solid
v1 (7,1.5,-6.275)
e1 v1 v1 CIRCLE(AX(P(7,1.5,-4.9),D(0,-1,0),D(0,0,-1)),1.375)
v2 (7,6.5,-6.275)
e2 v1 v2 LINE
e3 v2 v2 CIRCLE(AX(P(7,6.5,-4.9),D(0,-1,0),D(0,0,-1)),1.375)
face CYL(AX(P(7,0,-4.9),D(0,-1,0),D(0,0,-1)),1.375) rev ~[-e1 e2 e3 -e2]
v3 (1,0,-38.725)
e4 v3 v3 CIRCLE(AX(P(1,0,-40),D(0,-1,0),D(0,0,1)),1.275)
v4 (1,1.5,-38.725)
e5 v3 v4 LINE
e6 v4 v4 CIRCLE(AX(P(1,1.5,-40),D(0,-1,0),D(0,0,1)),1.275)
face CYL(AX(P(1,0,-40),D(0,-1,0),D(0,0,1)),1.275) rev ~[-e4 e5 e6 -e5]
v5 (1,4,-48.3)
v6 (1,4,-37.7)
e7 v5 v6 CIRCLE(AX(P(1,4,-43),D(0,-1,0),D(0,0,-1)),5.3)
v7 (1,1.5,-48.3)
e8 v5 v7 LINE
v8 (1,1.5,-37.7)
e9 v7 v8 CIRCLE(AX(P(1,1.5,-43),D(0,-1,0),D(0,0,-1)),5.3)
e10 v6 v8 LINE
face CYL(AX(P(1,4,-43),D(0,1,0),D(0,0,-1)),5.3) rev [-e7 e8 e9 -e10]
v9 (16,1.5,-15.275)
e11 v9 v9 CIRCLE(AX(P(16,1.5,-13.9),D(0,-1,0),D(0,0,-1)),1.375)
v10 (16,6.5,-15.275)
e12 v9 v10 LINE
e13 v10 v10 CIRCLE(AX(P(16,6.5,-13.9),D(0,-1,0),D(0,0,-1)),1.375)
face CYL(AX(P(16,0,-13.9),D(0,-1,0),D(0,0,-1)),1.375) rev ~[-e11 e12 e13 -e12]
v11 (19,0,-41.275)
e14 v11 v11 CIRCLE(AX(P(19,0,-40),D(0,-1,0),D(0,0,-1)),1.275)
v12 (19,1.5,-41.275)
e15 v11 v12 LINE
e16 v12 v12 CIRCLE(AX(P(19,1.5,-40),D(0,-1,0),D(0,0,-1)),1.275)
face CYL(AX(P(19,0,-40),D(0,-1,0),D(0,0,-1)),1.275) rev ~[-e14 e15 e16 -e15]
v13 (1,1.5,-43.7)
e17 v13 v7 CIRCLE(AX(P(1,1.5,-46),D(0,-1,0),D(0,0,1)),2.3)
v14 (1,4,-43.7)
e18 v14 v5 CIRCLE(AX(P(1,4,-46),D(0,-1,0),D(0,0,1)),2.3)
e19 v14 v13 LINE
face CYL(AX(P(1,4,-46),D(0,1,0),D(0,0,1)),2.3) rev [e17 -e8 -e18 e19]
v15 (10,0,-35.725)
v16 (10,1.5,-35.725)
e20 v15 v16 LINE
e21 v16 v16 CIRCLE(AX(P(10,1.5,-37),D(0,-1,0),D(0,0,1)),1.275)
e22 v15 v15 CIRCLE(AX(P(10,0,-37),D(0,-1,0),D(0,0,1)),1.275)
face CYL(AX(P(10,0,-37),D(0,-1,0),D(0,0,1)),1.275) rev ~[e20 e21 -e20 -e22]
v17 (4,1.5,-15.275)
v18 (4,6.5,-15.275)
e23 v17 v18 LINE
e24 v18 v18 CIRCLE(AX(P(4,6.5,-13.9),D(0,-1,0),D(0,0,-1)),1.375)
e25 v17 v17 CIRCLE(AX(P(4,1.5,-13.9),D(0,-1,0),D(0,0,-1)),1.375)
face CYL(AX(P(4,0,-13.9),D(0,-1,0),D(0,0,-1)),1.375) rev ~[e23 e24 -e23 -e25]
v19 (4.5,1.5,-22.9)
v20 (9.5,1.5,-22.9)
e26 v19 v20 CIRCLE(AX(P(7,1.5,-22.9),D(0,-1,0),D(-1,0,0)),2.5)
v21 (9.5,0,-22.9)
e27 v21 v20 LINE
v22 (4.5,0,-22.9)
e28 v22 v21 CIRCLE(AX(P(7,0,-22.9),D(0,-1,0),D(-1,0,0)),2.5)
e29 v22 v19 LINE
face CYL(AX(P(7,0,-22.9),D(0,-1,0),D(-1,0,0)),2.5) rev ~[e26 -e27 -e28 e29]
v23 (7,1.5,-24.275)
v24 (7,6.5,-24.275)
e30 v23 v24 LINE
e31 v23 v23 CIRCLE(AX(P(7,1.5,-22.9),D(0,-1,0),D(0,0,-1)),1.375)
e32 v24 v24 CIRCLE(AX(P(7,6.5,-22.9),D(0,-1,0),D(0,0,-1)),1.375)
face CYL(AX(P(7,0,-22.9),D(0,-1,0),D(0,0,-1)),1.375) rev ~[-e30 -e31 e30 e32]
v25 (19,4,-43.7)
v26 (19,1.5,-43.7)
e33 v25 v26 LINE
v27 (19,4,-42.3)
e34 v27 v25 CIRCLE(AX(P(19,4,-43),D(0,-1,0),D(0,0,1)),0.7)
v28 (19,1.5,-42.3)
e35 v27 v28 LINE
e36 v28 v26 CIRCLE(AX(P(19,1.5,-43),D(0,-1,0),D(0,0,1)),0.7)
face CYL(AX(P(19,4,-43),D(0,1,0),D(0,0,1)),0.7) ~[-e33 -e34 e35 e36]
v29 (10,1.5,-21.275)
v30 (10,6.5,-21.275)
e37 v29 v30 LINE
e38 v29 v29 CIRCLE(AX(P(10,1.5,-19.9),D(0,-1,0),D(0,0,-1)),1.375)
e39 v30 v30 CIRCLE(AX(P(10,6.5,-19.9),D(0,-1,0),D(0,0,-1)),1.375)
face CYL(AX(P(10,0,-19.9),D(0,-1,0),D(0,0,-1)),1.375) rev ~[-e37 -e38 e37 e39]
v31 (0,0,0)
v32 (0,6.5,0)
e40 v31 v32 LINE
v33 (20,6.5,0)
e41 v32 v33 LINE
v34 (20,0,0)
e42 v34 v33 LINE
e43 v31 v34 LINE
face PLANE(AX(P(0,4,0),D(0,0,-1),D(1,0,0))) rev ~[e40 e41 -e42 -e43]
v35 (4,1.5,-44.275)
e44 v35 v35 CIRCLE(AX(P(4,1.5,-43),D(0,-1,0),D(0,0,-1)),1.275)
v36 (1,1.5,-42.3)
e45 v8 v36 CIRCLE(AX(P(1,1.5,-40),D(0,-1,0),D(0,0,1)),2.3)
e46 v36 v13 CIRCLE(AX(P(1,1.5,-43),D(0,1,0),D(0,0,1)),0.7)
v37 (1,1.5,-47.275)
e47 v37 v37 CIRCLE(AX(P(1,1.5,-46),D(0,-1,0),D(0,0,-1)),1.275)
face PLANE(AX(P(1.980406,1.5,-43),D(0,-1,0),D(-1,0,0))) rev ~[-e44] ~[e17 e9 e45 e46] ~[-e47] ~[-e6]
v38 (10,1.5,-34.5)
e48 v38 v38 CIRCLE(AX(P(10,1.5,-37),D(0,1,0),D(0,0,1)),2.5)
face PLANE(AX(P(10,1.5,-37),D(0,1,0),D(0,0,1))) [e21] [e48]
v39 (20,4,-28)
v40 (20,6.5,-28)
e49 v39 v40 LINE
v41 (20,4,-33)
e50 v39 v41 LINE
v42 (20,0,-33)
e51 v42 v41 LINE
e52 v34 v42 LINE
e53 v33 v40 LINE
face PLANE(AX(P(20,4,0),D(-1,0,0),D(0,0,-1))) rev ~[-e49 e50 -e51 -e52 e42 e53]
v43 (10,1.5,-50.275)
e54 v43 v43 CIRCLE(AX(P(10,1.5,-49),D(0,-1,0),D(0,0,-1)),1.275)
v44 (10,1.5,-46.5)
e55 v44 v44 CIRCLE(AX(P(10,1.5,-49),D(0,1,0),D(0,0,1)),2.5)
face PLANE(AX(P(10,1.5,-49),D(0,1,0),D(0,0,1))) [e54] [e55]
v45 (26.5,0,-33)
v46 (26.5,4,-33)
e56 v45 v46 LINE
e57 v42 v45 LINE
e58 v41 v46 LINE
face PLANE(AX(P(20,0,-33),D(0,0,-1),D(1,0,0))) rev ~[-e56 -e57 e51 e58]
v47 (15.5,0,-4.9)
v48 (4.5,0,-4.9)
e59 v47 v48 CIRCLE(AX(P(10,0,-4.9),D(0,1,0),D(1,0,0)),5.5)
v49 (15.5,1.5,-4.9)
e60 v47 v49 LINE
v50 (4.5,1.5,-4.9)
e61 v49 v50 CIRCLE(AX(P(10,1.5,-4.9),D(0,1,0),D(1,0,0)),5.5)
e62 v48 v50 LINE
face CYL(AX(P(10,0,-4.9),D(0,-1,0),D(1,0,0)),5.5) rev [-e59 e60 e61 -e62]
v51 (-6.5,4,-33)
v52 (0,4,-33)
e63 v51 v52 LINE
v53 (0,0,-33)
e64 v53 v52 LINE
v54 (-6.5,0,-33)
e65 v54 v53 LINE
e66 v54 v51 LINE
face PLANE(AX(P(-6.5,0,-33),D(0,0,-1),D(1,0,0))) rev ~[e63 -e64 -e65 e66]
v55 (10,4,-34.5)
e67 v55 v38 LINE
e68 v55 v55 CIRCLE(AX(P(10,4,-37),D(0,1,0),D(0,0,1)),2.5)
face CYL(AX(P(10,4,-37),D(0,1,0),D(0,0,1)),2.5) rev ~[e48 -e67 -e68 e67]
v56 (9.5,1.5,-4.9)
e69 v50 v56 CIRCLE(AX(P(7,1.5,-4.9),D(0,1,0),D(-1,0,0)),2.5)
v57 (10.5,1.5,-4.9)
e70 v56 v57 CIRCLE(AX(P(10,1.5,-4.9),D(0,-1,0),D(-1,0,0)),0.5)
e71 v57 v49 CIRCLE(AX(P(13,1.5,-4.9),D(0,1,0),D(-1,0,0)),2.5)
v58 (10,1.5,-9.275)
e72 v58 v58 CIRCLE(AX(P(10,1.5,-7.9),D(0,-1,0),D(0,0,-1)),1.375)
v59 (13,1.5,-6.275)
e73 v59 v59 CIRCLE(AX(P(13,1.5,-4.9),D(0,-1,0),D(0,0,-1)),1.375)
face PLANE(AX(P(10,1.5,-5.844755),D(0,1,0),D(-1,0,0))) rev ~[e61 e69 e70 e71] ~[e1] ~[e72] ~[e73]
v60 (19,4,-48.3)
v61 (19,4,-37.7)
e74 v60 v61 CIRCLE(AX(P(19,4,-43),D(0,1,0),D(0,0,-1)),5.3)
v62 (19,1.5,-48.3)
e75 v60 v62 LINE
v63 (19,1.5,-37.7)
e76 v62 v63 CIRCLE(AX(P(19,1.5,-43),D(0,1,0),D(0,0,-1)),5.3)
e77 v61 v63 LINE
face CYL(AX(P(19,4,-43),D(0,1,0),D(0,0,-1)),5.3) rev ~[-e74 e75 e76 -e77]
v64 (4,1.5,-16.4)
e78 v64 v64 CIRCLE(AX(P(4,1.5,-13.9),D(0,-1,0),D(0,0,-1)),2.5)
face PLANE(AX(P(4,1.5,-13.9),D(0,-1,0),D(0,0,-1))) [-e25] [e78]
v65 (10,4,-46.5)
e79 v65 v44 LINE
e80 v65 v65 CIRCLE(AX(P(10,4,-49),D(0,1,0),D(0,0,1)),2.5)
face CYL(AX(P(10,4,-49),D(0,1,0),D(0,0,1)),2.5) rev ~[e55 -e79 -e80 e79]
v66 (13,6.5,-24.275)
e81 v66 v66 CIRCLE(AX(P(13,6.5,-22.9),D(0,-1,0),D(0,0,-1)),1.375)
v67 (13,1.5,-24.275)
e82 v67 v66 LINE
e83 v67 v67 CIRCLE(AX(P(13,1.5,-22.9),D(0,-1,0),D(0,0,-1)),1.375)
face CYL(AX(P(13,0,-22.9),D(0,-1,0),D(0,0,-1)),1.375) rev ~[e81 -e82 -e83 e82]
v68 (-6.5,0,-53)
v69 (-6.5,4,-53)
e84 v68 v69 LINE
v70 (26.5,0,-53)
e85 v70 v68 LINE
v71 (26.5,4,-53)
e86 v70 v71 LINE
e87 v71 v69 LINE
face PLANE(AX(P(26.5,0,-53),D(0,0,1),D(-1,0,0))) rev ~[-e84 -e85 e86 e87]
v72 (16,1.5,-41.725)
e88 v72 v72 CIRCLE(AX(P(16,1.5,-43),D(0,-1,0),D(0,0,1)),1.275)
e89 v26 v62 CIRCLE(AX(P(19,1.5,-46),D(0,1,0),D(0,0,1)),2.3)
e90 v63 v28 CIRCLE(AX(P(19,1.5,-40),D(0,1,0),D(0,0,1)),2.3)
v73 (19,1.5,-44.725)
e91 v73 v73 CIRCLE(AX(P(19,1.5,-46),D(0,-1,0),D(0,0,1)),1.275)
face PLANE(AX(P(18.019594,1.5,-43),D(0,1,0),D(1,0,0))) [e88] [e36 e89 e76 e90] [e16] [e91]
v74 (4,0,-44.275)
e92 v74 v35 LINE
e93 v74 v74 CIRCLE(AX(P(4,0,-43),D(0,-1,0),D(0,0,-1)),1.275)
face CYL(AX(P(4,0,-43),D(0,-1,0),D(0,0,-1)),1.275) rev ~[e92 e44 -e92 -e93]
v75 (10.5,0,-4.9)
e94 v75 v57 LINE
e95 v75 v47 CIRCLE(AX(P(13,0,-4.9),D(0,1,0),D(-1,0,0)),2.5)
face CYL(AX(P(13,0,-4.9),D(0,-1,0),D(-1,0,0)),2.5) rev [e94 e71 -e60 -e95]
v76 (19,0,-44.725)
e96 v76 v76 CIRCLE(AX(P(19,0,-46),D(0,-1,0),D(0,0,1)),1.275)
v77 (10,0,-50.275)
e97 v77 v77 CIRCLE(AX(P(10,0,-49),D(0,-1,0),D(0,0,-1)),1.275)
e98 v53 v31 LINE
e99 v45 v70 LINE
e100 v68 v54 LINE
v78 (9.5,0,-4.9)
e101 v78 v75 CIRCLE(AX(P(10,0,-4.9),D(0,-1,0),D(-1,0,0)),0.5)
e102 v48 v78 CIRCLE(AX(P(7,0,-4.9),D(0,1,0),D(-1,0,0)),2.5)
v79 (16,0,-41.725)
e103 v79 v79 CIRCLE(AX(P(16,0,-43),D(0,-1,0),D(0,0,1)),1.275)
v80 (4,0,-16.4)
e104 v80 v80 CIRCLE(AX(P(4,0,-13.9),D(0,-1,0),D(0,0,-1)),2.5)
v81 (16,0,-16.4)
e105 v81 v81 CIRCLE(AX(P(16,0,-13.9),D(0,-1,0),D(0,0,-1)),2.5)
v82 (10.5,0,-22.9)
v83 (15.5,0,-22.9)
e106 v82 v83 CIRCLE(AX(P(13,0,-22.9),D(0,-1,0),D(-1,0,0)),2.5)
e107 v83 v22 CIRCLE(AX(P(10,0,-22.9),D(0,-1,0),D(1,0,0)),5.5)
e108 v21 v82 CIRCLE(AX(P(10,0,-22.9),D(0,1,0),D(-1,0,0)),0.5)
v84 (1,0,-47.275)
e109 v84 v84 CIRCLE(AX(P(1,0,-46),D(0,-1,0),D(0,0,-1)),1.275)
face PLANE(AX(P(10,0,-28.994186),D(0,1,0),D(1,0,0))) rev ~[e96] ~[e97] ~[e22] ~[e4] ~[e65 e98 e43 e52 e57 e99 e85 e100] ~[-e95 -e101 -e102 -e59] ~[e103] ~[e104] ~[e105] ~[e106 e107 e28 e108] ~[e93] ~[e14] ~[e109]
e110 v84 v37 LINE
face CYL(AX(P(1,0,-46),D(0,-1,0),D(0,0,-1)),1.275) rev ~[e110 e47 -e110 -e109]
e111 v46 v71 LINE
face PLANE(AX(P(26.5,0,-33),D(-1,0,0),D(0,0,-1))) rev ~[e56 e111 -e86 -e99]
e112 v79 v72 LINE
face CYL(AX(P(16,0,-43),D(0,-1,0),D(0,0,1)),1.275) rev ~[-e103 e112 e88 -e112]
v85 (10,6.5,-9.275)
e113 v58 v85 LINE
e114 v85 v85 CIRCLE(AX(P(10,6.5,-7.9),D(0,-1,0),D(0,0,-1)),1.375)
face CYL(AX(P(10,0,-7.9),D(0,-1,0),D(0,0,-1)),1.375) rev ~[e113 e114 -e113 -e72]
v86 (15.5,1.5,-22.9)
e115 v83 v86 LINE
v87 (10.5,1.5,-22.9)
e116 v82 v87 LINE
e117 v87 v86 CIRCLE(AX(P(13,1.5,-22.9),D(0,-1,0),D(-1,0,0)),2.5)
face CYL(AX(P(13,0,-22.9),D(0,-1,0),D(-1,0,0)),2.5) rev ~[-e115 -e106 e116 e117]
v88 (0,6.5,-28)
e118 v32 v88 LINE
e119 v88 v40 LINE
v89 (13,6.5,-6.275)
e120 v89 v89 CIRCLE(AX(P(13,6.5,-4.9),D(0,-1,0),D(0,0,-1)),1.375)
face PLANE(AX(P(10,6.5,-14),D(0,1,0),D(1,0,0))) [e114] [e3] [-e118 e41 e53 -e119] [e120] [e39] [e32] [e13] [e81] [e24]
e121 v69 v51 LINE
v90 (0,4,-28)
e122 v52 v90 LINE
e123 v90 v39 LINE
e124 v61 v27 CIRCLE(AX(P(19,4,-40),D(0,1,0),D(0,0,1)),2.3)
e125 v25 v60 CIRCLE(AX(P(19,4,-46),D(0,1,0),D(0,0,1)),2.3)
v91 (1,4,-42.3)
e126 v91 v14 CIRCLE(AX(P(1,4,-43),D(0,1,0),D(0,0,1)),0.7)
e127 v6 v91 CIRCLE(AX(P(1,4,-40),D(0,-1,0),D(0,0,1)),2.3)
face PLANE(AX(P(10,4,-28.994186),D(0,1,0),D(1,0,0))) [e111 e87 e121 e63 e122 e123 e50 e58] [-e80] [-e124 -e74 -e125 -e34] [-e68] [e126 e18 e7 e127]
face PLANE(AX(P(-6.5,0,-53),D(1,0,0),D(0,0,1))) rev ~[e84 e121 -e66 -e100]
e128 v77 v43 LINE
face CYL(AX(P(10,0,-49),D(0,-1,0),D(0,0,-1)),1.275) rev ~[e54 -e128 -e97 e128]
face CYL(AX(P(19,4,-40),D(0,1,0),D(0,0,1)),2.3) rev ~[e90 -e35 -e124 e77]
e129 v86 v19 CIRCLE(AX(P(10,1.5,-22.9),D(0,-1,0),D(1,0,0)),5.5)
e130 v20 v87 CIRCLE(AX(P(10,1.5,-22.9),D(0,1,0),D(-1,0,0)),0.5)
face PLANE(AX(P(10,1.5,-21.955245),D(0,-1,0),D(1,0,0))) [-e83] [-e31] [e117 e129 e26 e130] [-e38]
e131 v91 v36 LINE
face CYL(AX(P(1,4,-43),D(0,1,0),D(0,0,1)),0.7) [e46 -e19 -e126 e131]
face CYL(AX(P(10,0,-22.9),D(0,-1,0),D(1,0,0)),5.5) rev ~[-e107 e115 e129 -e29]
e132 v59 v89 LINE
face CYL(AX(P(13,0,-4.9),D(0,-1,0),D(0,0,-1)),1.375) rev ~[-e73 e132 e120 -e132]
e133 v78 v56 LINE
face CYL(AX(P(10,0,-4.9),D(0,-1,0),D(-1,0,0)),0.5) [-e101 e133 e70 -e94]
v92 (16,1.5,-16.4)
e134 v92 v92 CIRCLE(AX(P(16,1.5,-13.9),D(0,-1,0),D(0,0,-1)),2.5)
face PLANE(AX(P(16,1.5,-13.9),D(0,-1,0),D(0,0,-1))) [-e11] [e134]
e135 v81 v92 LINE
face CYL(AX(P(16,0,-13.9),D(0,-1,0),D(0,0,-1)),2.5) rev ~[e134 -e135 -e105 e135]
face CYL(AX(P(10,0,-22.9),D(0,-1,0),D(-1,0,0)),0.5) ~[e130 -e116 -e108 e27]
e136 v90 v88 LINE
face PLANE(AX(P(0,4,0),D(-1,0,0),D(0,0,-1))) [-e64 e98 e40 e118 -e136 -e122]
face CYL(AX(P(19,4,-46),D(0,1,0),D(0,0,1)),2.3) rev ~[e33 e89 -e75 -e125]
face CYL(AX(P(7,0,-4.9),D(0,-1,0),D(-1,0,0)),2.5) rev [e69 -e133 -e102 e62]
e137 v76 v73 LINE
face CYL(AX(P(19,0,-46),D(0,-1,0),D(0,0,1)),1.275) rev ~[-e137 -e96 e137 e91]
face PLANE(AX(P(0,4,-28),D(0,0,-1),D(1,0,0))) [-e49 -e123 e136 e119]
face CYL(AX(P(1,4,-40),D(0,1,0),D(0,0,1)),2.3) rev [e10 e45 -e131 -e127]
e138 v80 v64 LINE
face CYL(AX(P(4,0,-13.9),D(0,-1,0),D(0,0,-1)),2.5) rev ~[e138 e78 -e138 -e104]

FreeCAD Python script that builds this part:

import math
import FreeCAD as App
import Part
import Sketcher


def add_polygon(sketch, points):
    """Adds a closed chain of lines whose ends are joined by coincident constraints."""
    first, n = sketch.GeometryCount, len(points)
    for a, b in zip(points, points[1:] + points[:1]):
        sketch.addGeometry(Part.LineSegment(App.Vector(*a, 0), App.Vector(*b, 0)), False)
    for i in range(n):
        sketch.addConstraint(Sketcher.Constraint("Coincident", first + i, 2, first + (i + 1) % n, 1))

doc = App.newDocument("Part")
params = doc.addObject("Spreadsheet::Sheet", "Params")
for row, (alias, value) in enumerate([
    ("sketch1_width", "20 mm"),
    ("sketch1_width2", "33 mm"),
    ("pad1_length", "4 mm"),
    ("sketch2_width", "20 mm"),
    ("sketch2_height", "28 mm"),
    ("pad2_length", "2.5 mm"),
    ("sketch3_diameter", "2.75 mm"),
    ("sketch4_diameter", "2.75 mm"),
    ("sketch5_diameter", "2.75 mm"),
    ("sketch6_diameter", "2.75 mm"),
    ("sketch7_diameter", "2.75 mm"),
    ("sketch8_diameter", "2.75 mm"),
    ("sketch9_diameter", "2.75 mm"),
    ("sketch10_diameter", "2.75 mm"),
    ("sketch11_diameter", "2.55 mm"),
    ("sketch12_diameter", "2.55 mm"),
    ("sketch13_diameter", "2.55 mm"),
    ("sketch14_diameter", "2.55 mm"),
    ("sketch15_diameter", "2.55 mm"),
    ("sketch16_diameter", "2.55 mm"),
    ("sketch17_diameter", "2.55 mm"),
    ("sketch18_diameter", "2.55 mm"),
    ("sketch19_diameter", "5 mm"),
    ("sketch19_radius", "5.5 mm"),
    ("pocket17_length", "1.5 mm"),
    ("sketch20_diameter", "5 mm"),
    ("sketch20_radius", "5.3 mm"),
    ("sketch20_radius2", "2.3 mm"),
    ("pocket18_length", "2.5 mm"),
], start=1):
    params.set(f"A{row}", alias)
    params.set(f"B{row}", "=" + value)
    params.setAlias(f"B{row}", alias)

body = doc.addObject("PartDesign::Body", "Body")

# Sketch on XZ plane
sketch1 = doc.addObject("Sketcher::SketchObject", "Sketch")
body.addObject(sketch1)
sketch1.AttachmentSupport = (doc.XZ_Plane, [""])
sketch1.MapMode = "FlatFace"
add_polygon(sketch1, [(0, 0), (20, 0), (20, -33), (26, -33), (26, -53), (-6, -53), (-6, -33), (0, -33)])  # lines 0-7
sketch1.addConstraint([
    Sketcher.Constraint("Horizontal", 0),
    Sketcher.Constraint("Vertical", 1),
    Sketcher.Constraint("Horizontal", 2),
    Sketcher.Constraint("Vertical", 3),
    Sketcher.Constraint("Horizontal", 4),
    Sketcher.Constraint("Vertical", 5),
    Sketcher.Constraint("Horizontal", 6),
    Sketcher.Constraint("Vertical", 7),
    Sketcher.Constraint("Coincident", 7, 2, -1, 1),
    Sketcher.Constraint("Horizontal", 2, 2, 5, 2),
    Sketcher.Constraint("Equal", 2, 6),
    Sketcher.Constraint("Equal", 4, 1),
    Sketcher.Constraint("Equal", 0, 3),
    Sketcher.Constraint("DistanceX", 0, 1, 0, 2, 20.0),
    Sketcher.Constraint("DistanceX", 4, 2, 4, 1, 33.0),
])
sketch1.setExpression("Constraints[21]", "Params.sketch1_width")
sketch1.setExpression("Constraints[22]", "Params.sketch1_width2")
pad1 = doc.addObject("PartDesign::Pad", "Pad")
body.addObject(pad1)
pad1.Profile = sketch1
pad1.setExpression("Length", "Params.pad1_length")
pad1.Reversed = True

# Sketch on XZ plane
sketch2 = doc.addObject("Sketcher::SketchObject", "Sketch001")
body.addObject(sketch2)
sketch2.AttachmentSupport = (doc.XZ_Plane, [""])
sketch2.MapMode = "FlatFace"
sketch2.AttachmentOffset = App.Placement(App.Vector(0, 0, -4), App.Rotation())
add_polygon(sketch2, [(0, -28), (0, 0), (20, 0), (20, -28)])  # lines 0-3
sketch2.addConstraint([
    Sketcher.Constraint("Vertical", 0),
    Sketcher.Constraint("Horizontal", 1),
    Sketcher.Constraint("Vertical", 2),
    Sketcher.Constraint("Horizontal", 3),
    Sketcher.Constraint("Coincident", 0, 2, -1, 1),
    Sketcher.Constraint("DistanceX", 1, 1, 1, 2, 20.0),
    Sketcher.Constraint("DistanceY", 0, 1, 0, 2, 28.0),
])
sketch2.setExpression("Constraints[9]", "Params.sketch2_width")
sketch2.setExpression("Constraints[10]", "Params.sketch2_height")
pad2 = doc.addObject("PartDesign::Pad", "Pad001")
body.addObject(pad2)
pad2.Profile = sketch2
pad2.setExpression("Length", "Params.pad2_length")
pad2.Reversed = True

# Sketch on XZ plane
sketch3 = doc.addObject("Sketcher::SketchObject", "Sketch002")
body.addObject(sketch3)
sketch3.AttachmentSupport = (doc.XZ_Plane, [""])
sketch3.MapMode = "FlatFace"
sketch3.addGeometry(Part.Circle(App.Vector(10, -7.9, 0), App.Vector(0, 0, 1), 1.4), False)
sketch3.addConstraint([
    Sketcher.Constraint("Diameter", 0, 2.75),
    Sketcher.Constraint("DistanceX", -1, 1, 0, 3, 10.0),
    Sketcher.Constraint("DistanceY", 0, 3, -1, 1, 7.9),
])
sketch3.setExpression("Constraints[0]", "Params.sketch3_diameter")
pocket1 = doc.addObject("PartDesign::Pocket", "Pocket")
body.addObject(pocket1)
pocket1.Profile = sketch3
pocket1.Type = "UpToFirst"

# Sketch on XZ plane
sketch4 = doc.addObject("Sketcher::SketchObject", "Sketch003")
body.addObject(sketch4)
sketch4.AttachmentSupport = (doc.XZ_Plane, [""])
sketch4.MapMode = "FlatFace"
sketch4.addGeometry(Part.Circle(App.Vector(7, -4.9, 0), App.Vector(0, 0, 1), 1.4), False)
sketch4.addConstraint([
    Sketcher.Constraint("Diameter", 0, 2.75),
    Sketcher.Constraint("DistanceX", -1, 1, 0, 3, 7.0),
    Sketcher.Constraint("DistanceY", 0, 3, -1, 1, 4.9),
])
sketch4.setExpression("Constraints[0]", "Params.sketch4_diameter")
pocket2 = doc.addObject("PartDesign::Pocket", "Pocket001")
body.addObject(pocket2)
pocket2.Profile = sketch4
pocket2.Type = "UpToFirst"

# Sketch on XZ plane
sketch5 = doc.addObject("Sketcher::SketchObject", "Sketch004")
body.addObject(sketch5)
sketch5.AttachmentSupport = (doc.XZ_Plane, [""])
sketch5.MapMode = "FlatFace"
sketch5.addGeometry(Part.Circle(App.Vector(4, -13.9, 0), App.Vector(0, 0, 1), 1.4), False)
sketch5.addConstraint([
    Sketcher.Constraint("Diameter", 0, 2.75),
    Sketcher.Constraint("DistanceX", -1, 1, 0, 3, 4.0),
    Sketcher.Constraint("DistanceY", 0, 3, -1, 1, 13.9),
])
sketch5.setExpression("Constraints[0]", "Params.sketch5_diameter")
pocket3 = doc.addObject("PartDesign::Pocket", "Pocket002")
body.addObject(pocket3)
pocket3.Profile = sketch5
pocket3.Type = "UpToFirst"

# Sketch on XZ plane
sketch6 = doc.addObject("Sketcher::SketchObject", "Sketch005")
body.addObject(sketch6)
sketch6.AttachmentSupport = (doc.XZ_Plane, [""])
sketch6.MapMode = "FlatFace"
sketch6.addGeometry(Part.Circle(App.Vector(10, -19.9, 0), App.Vector(0, 0, 1), 1.4), False)
sketch6.addConstraint([
    Sketcher.Constraint("Diameter", 0, 2.75),
    Sketcher.Constraint("DistanceX", -1, 1, 0, 3, 10.0),
    Sketcher.Constraint("DistanceY", 0, 3, -1, 1, 19.9),
])
sketch6.setExpression("Constraints[0]", "Params.sketch6_diameter")
pocket4 = doc.addObject("PartDesign::Pocket", "Pocket003")
body.addObject(pocket4)
pocket4.Profile = sketch6
pocket4.Type = "UpToFirst"

# Sketch on XZ plane
sketch7 = doc.addObject("Sketcher::SketchObject", "Sketch006")
body.addObject(sketch7)
sketch7.AttachmentSupport = (doc.XZ_Plane, [""])
sketch7.MapMode = "FlatFace"
sketch7.addGeometry(Part.Circle(App.Vector(7, -22.9, 0), App.Vector(0, 0, 1), 1.4), False)
sketch7.addConstraint([
    Sketcher.Constraint("Diameter", 0, 2.75),
    Sketcher.Constraint("DistanceX", -1, 1, 0, 3, 7.0),
    Sketcher.Constraint("DistanceY", 0, 3, -1, 1, 22.9),
])
sketch7.setExpression("Constraints[0]", "Params.sketch7_diameter")
pocket5 = doc.addObject("PartDesign::Pocket", "Pocket004")
body.addObject(pocket5)
pocket5.Profile = sketch7
pocket5.Type = "UpToFirst"

# Sketch on XZ plane
sketch8 = doc.addObject("Sketcher::SketchObject", "Sketch007")
body.addObject(sketch8)
sketch8.AttachmentSupport = (doc.XZ_Plane, [""])
sketch8.MapMode = "FlatFace"
sketch8.addGeometry(Part.Circle(App.Vector(13, -4.9, 0), App.Vector(0, 0, 1), 1.4), False)
sketch8.addConstraint([
    Sketcher.Constraint("Diameter", 0, 2.75),
    Sketcher.Constraint("DistanceX", -1, 1, 0, 3, 13.0),
    Sketcher.Constraint("DistanceY", 0, 3, -1, 1, 4.9),
])
sketch8.setExpression("Constraints[0]", "Params.sketch8_diameter")
pocket6 = doc.addObject("PartDesign::Pocket", "Pocket005")
body.addObject(pocket6)
pocket6.Profile = sketch8
pocket6.Type = "UpToFirst"

# Sketch on XZ plane
sketch9 = doc.addObject("Sketcher::SketchObject", "Sketch008")
body.addObject(sketch9)
sketch9.AttachmentSupport = (doc.XZ_Plane, [""])
sketch9.MapMode = "FlatFace"
sketch9.addGeometry(Part.Circle(App.Vector(13, -22.9, 0), App.Vector(0, 0, 1), 1.4), False)
sketch9.addConstraint([
    Sketcher.Constraint("Diameter", 0, 2.75),
    Sketcher.Constraint("DistanceX", -1, 1, 0, 3, 13.0),
    Sketcher.Constraint("DistanceY", 0, 3, -1, 1, 22.9),
])
sketch9.setExpression("Constraints[0]", "Params.sketch9_diameter")
pocket7 = doc.addObject("PartDesign::Pocket", "Pocket006")
body.addObject(pocket7)
pocket7.Profile = sketch9
pocket7.Type = "UpToFirst"

# Sketch on XZ plane
sketch10 = doc.addObject("Sketcher::SketchObject", "Sketch009")
body.addObject(sketch10)
sketch10.AttachmentSupport = (doc.XZ_Plane, [""])
sketch10.MapMode = "FlatFace"
sketch10.addGeometry(Part.Circle(App.Vector(16, -13.9, 0), App.Vector(0, 0, 1), 1.4), False)
sketch10.addConstraint([
    Sketcher.Constraint("Diameter", 0, 2.75),
    Sketcher.Constraint("DistanceX", -1, 1, 0, 3, 16.0),
    Sketcher.Constraint("DistanceY", 0, 3, -1, 1, 13.9),
])
sketch10.setExpression("Constraints[0]", "Params.sketch10_diameter")
pocket8 = doc.addObject("PartDesign::Pocket", "Pocket007")
body.addObject(pocket8)
pocket8.Profile = sketch10
pocket8.Type = "UpToFirst"

# Sketch on XZ plane
sketch11 = doc.addObject("Sketcher::SketchObject", "Sketch010")
body.addObject(sketch11)
sketch11.AttachmentSupport = (doc.XZ_Plane, [""])
sketch11.MapMode = "FlatFace"
sketch11.addGeometry(Part.Circle(App.Vector(10, -49, 0), App.Vector(0, 0, 1), 1.3), False)
sketch11.addConstraint([
    Sketcher.Constraint("Diameter", 0, 2.55),
    Sketcher.Constraint("DistanceX", -1, 1, 0, 3, 10.0),
    Sketcher.Constraint("DistanceY", 0, 3, -1, 1, 49.0),
])
sketch11.setExpression("Constraints[0]", "Params.sketch11_diameter")
pocket9 = doc.addObject("PartDesign::Pocket", "Pocket008")
body.addObject(pocket9)
pocket9.Profile = sketch11
pocket9.Type = "UpToFirst"

# Sketch on XZ plane
sketch12 = doc.addObject("Sketcher::SketchObject", "Sketch011")
body.addObject(sketch12)
sketch12.AttachmentSupport = (doc.XZ_Plane, [""])
sketch12.MapMode = "FlatFace"
sketch12.addGeometry(Part.Circle(App.Vector(4, -43, 0), App.Vector(0, 0, 1), 1.3), False)
sketch12.addConstraint([
    Sketcher.Constraint("Diameter", 0, 2.55),
    Sketcher.Constraint("DistanceX", -1, 1, 0, 3, 4.0),
    Sketcher.Constraint("DistanceY", 0, 3, -1, 1, 43.0),
])
sketch12.setExpression("Constraints[0]", "Params.sketch12_diameter")
pocket10 = doc.addObject("PartDesign::Pocket", "Pocket009")
body.addObject(pocket10)
pocket10.Profile = sketch12
pocket10.Type = "UpToFirst"

# Sketch on XZ plane
sketch13 = doc.addObject("Sketcher::SketchObject", "Sketch012")
body.addObject(sketch13)
sketch13.AttachmentSupport = (doc.XZ_Plane, [""])
sketch13.MapMode = "FlatFace"
sketch13.addGeometry(Part.Circle(App.Vector(1, -46, 0), App.Vector(0, 0, 1), 1.3), False)
sketch13.addConstraint([
    Sketcher.Constraint("Diameter", 0, 2.55),
    Sketcher.Constraint("DistanceX", -1, 1, 0, 3, 1.0),
    Sketcher.Constraint("DistanceY", 0, 3, -1, 1, 46.0),
])
sketch13.setExpression("Constraints[0]", "Params.sketch13_diameter")
pocket11 = doc.addObject("PartDesign::Pocket", "Pocket010")
body.addObject(pocket11)
pocket11.Profile = sketch13
pocket11.Type = "UpToFirst"

# Sketch on XZ plane
sketch14 = doc.addObject("Sketcher::SketchObject", "Sketch013")
body.addObject(sketch14)
sketch14.AttachmentSupport = (doc.XZ_Plane, [""])
sketch14.MapMode = "FlatFace"
sketch14.addGeometry(Part.Circle(App.Vector(10, -37, 0), App.Vector(0, 0, 1), 1.3), False)
sketch14.addConstraint([
    Sketcher.Constraint("Diameter", 0, 2.55),
    Sketcher.Constraint("DistanceX", -1, 1, 0, 3, 10.0),
    Sketcher.Constraint("DistanceY", 0, 3, -1, 1, 37.0),
])
sketch14.setExpression("Constraints[0]", "Params.sketch14_diameter")
pocket12 = doc.addObject("PartDesign::Pocket", "Pocket011")
body.addObject(pocket12)
pocket12.Profile = sketch14
pocket12.Type = "UpToFirst"

# Sketch on XZ plane
sketch15 = doc.addObject("Sketcher::SketchObject", "Sketch014")
body.addObject(sketch15)
sketch15.AttachmentSupport = (doc.XZ_Plane, [""])
sketch15.MapMode = "FlatFace"
sketch15.addGeometry(Part.Circle(App.Vector(1, -40, 0), App.Vector(0, 0, 1), 1.3), False)
sketch15.addConstraint([
    Sketcher.Constraint("Diameter", 0, 2.55),
    Sketcher.Constraint("DistanceX", -1, 1, 0, 3, 1.0),
    Sketcher.Constraint("DistanceY", 0, 3, -1, 1, 40.0),
])
sketch15.setExpression("Constraints[0]", "Params.sketch15_diameter")
pocket13 = doc.addObject("PartDesign::Pocket", "Pocket012")
body.addObject(pocket13)
pocket13.Profile = sketch15
pocket13.Type = "UpToFirst"

# Sketch on XZ plane
sketch16 = doc.addObject("Sketcher::SketchObject", "Sketch015")
body.addObject(sketch16)
sketch16.AttachmentSupport = (doc.XZ_Plane, [""])
sketch16.MapMode = "FlatFace"
sketch16.addGeometry(Part.Circle(App.Vector(19, -46, 0), App.Vector(0, 0, 1), 1.3), False)
sketch16.addConstraint([
    Sketcher.Constraint("Diameter", 0, 2.55),
    Sketcher.Constraint("DistanceX", -1, 1, 0, 3, 19.0),
    Sketcher.Constraint("DistanceY", 0, 3, -1, 1, 46.0),
])
sketch16.setExpression("Constraints[0]", "Params.sketch16_diameter")
pocket14 = doc.addObject("PartDesign::Pocket", "Pocket013")
body.addObject(pocket14)
pocket14.Profile = sketch16
pocket14.Type = "UpToFirst"

# Sketch on XZ plane
sketch17 = doc.addObject("Sketcher::SketchObject", "Sketch016")
body.addObject(sketch17)
sketch17.AttachmentSupport = (doc.XZ_Plane, [""])
sketch17.MapMode = "FlatFace"
sketch17.addGeometry(Part.Circle(App.Vector(16, -43, 0), App.Vector(0, 0, 1), 1.3), False)
sketch17.addConstraint([
    Sketcher.Constraint("Diameter", 0, 2.55),
    Sketcher.Constraint("DistanceX", -1, 1, 0, 3, 16.0),
    Sketcher.Constraint("DistanceY", 0, 3, -1, 1, 43.0),
])
sketch17.setExpression("Constraints[0]", "Params.sketch17_diameter")
pocket15 = doc.addObject("PartDesign::Pocket", "Pocket014")
body.addObject(pocket15)
pocket15.Profile = sketch17
pocket15.Type = "UpToFirst"

# Sketch on XZ plane
sketch18 = doc.addObject("Sketcher::SketchObject", "Sketch017")
body.addObject(sketch18)
sketch18.AttachmentSupport = (doc.XZ_Plane, [""])
sketch18.MapMode = "FlatFace"
sketch18.addGeometry(Part.Circle(App.Vector(19, -40, 0), App.Vector(0, 0, 1), 1.3), False)
sketch18.addConstraint([
    Sketcher.Constraint("Diameter", 0, 2.55),
    Sketcher.Constraint("DistanceX", -1, 1, 0, 3, 19.0),
    Sketcher.Constraint("DistanceY", 0, 3, -1, 1, 40.0),
])
sketch18.setExpression("Constraints[0]", "Params.sketch18_diameter")
pocket16 = doc.addObject("PartDesign::Pocket", "Pocket015")
body.addObject(pocket16)
pocket16.Profile = sketch18
pocket16.Type = "UpToFirst"

# Sketch on XZ plane
sketch19 = doc.addObject("Sketcher::SketchObject", "Sketch018")
body.addObject(sketch19)
sketch19.AttachmentSupport = (doc.XZ_Plane, [""])
sketch19.MapMode = "FlatFace"
sketch19.addGeometry([
    Part.Circle(App.Vector(4, -13.9, 0), App.Vector(0, 0, 1), 2.5),  # 0
    Part.Circle(App.Vector(16, -13.9, 0), App.Vector(0, 0, 1), 2.5),  # 1
    Part.ArcOfCircle(Part.Circle(App.Vector(10, -22.9, 0), App.Vector(0, 0, 1), 5.5), math.radians(0), math.radians(180)),  # 2
    Part.ArcOfCircle(Part.Circle(App.Vector(7, -22.9, 0), App.Vector(0, 0, 1), 2.5), math.radians(180), math.radians(360)),  # 3
    Part.ArcOfCircle(Part.Circle(App.Vector(10, -22.9, 0), App.Vector(0, 0, 1), 0.5), math.radians(0), math.radians(180)),  # 4
    Part.ArcOfCircle(Part.Circle(App.Vector(13, -22.9, 0), App.Vector(0, 0, 1), 2.5), math.radians(180), math.radians(360)),  # 5
    Part.ArcOfCircle(Part.Circle(App.Vector(10, -4.9, 0), App.Vector(0, 0, 1), 5.5), math.radians(180), math.radians(360)),  # 6
    Part.ArcOfCircle(Part.Circle(App.Vector(13, -4.9, 0), App.Vector(0, 0, 1), 2.5), math.radians(0), math.radians(180)),  # 7
    Part.ArcOfCircle(Part.Circle(App.Vector(10, -4.9, 0), App.Vector(0, 0, 1), 0.5), math.radians(180), math.radians(360)),  # 8
    Part.ArcOfCircle(Part.Circle(App.Vector(7, -4.9, 0), App.Vector(0, 0, 1), 2.5), math.radians(0), math.radians(180)),  # 9
], False)
sketch19.addConstraint([
    Sketcher.Constraint("Tangent", 2, 2, 3, 1),
    Sketcher.Constraint("Tangent", 3, 2, 4, 2),
    Sketcher.Constraint("Tangent", 4, 1, 5, 1),
    Sketcher.Constraint("Tangent", 5, 2, 2, 1),
    Sketcher.Constraint("Tangent", 6, 2, 7, 1),
    Sketcher.Constraint("Tangent", 7, 2, 8, 2),
    Sketcher.Constraint("Tangent", 8, 1, 9, 1),
    Sketcher.Constraint("Tangent", 9, 2, 6, 1),
    Sketcher.Constraint("Coincident", 4, 3, 2, 3),
    Sketcher.Constraint("Coincident", 8, 3, 6, 3),
    Sketcher.Constraint("Equal", 0, 1),
    Sketcher.Constraint("Equal", 1, 3),
    Sketcher.Constraint("Equal", 2, 6),
    Sketcher.Constraint("Equal", 5, 7),
    Sketcher.Constraint("Horizontal", 0, 3, 1, 3),
    Sketcher.Constraint("Horizontal", 2, 3, 3, 3),
    Sketcher.Constraint("Horizontal", 4, 3, 5, 3),
    Sketcher.Constraint("Horizontal", 6, 3, 7, 3),
    Sketcher.Constraint("Horizontal", 8, 3, 9, 3),
    Sketcher.Constraint("Vertical", 4, 3, 6, 3),
    Sketcher.Constraint("Diameter", 0, 5.0),
    Sketcher.Constraint("Radius", 2, 5.5),
    Sketcher.Constraint("DistanceX", -1, 1, 0, 3, 4.0),
    Sketcher.Constraint("DistanceX", -1, 1, 1, 3, 16.0),
    Sketcher.Constraint("DistanceX", -1, 1, 2, 3, 10.0),
    Sketcher.Constraint("DistanceY", 2, 3, 0, 3, 9.0),
    Sketcher.Constraint("DistanceY", 0, 3, 6, 3, 9.0),
    Sketcher.Constraint("DistanceY", 0, 3, -1, 1, 13.9),
])
sketch19.setExpression("Constraints[20]", "Params.sketch19_diameter")
sketch19.setExpression("Constraints[21]", "Params.sketch19_radius")
pocket17 = doc.addObject("PartDesign::Pocket", "Pocket016")
body.addObject(pocket17)
pocket17.Profile = sketch19
pocket17.setExpression("Length", "Params.pocket17_length")

# Sketch on XZ plane
sketch20 = doc.addObject("Sketcher::SketchObject", "Sketch019")
body.addObject(sketch20)
sketch20.AttachmentSupport = (doc.XZ_Plane, [""])
sketch20.MapMode = "FlatFace"
sketch20.AttachmentOffset = App.Placement(App.Vector(0, 0, -4), App.Rotation())
sketch20.addGeometry([
    Part.Circle(App.Vector(10, -49, 0), App.Vector(0, 0, 1), 2.5),  # 0
    Part.Circle(App.Vector(10, -37, 0), App.Vector(0, 0, 1), 2.5),  # 1
    Part.ArcOfCircle(Part.Circle(App.Vector(19, -43, 0), App.Vector(0, 0, 1), 5.3), math.radians(90), math.radians(270)),  # 2
    Part.ArcOfCircle(Part.Circle(App.Vector(19, -40, 0), App.Vector(0, 0, 1), 2.3), math.radians(-90), math.radians(90)),  # 3
    Part.ArcOfCircle(Part.Circle(App.Vector(19, -43, 0), App.Vector(0, 0, 1), 0.7), math.radians(90), math.radians(270)),  # 4
    Part.ArcOfCircle(Part.Circle(App.Vector(19, -46, 0), App.Vector(0, 0, 1), 2.3), math.radians(-90), math.radians(90)),  # 5
    Part.ArcOfCircle(Part.Circle(App.Vector(1, -43, 0), App.Vector(0, 0, 1), 5.3), math.radians(-90), math.radians(90)),  # 6
    Part.ArcOfCircle(Part.Circle(App.Vector(1, -46, 0), App.Vector(0, 0, 1), 2.3), math.radians(90), math.radians(270)),  # 7
    Part.ArcOfCircle(Part.Circle(App.Vector(1, -43, 0), App.Vector(0, 0, 1), 0.7), math.radians(-90), math.radians(90)),  # 8
    Part.ArcOfCircle(Part.Circle(App.Vector(1, -40, 0), App.Vector(0, 0, 1), 2.3), math.radians(90), math.radians(270)),  # 9
], False)
sketch20.addConstraint([
    Sketcher.Constraint("Tangent", 2, 1, 3, 2),
    Sketcher.Constraint("Tangent", 3, 1, 4, 1),
    Sketcher.Constraint("Tangent", 4, 2, 5, 2),
    Sketcher.Constraint("Tangent", 5, 1, 2, 2),
    Sketcher.Constraint("Tangent", 6, 1, 7, 2),
    Sketcher.Constraint("Tangent", 7, 1, 8, 1),
    Sketcher.Constraint("Tangent", 8, 2, 9, 2),
    Sketcher.Constraint("Tangent", 9, 1, 6, 2),
    Sketcher.Constraint("Coincident", 4, 3, 2, 3),
    Sketcher.Constraint("Coincident", 8, 3, 6, 3),
    Sketcher.Constraint("Equal", 0, 1),
    Sketcher.Constraint("Equal", 2, 6),
    Sketcher.Constraint("Equal", 5, 7),
    Sketcher.Constraint("Horizontal", 4, 3, 6, 3),
    Sketcher.Constraint("Vertical", 0, 3, 1, 3),
    Sketcher.Constraint("Vertical", 2, 3, 3, 3),
    Sketcher.Constraint("Vertical", 4, 3, 5, 3),
    Sketcher.Constraint("Vertical", 6, 3, 7, 3),
    Sketcher.Constraint("Vertical", 8, 3, 9, 3),
    Sketcher.Constraint("Diameter", 0, 5.0),
    Sketcher.Constraint("Radius", 2, 5.3),
    Sketcher.Constraint("Radius", 3, 2.3),
    Sketcher.Constraint("DistanceX", -1, 1, 0, 3, 10.0),
    Sketcher.Constraint("DistanceY", 0, 3, -1, 1, 49.0),
    Sketcher.Constraint("DistanceY", 1, 3, -1, 1, 37.0),
    Sketcher.Constraint("DistanceX", -1, 1, 2, 3, 19.0),
    Sketcher.Constraint("DistanceY", 2, 3, -1, 1, 43.0),
    Sketcher.Constraint("DistanceX", -1, 1, 6, 3, 1.0),
])
sketch20.setExpression("Constraints[19]", "Params.sketch20_diameter")
sketch20.setExpression("Constraints[20]", "Params.sketch20_radius")
sketch20.setExpression("Constraints[21]", "Params.sketch20_radius2")
pocket18 = doc.addObject("PartDesign::Pocket", "Pocket017")
body.addObject(pocket18)
pocket18.Profile = sketch20
pocket18.setExpression("Length", "Params.pocket18_length")
pocket18.Reversed = True

doc.recompute()
